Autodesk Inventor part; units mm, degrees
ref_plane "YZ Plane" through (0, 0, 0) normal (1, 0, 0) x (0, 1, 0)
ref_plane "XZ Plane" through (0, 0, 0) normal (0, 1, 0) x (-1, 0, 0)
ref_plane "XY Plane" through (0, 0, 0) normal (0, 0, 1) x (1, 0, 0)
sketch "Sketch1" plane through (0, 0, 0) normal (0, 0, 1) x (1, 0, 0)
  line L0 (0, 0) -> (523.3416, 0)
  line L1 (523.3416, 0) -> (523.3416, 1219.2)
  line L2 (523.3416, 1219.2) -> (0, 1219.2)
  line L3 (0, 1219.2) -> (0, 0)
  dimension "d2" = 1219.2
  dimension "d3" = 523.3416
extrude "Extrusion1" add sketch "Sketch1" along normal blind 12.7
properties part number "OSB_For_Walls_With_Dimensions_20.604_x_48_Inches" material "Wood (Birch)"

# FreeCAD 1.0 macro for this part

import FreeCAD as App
import Part
import Sketcher
from FreeCAD import Vector
Q = App.Units.Quantity


def add_polygon(sketch, points):
    """Adds a closed chain of lines whose ends are joined by coincident constraints."""
    first, n = sketch.GeometryCount, len(points)
    for a, b in zip(points, points[1:] + points[:1]):
        sketch.addGeometry(Part.LineSegment(App.Vector(*a, 0), App.Vector(*b, 0)), False)
    for i in range(n):
        sketch.addConstraint(Sketcher.Constraint("Coincident", first + i, 2, first + (i + 1) % n, 1))

doc = App.newDocument("Part")
body = doc.addObject("PartDesign::Body", "Body")

sketch1 = doc.addObject("Sketcher::SketchObject", "Sketch")
body.addObject(sketch1)
sketch1.AttachmentSupport = (doc.XY_Plane, [""])
sketch1.MapMode = "FlatFace"
add_polygon(sketch1, [(0, 1219), (0, 0), (523, 0), (523, 1219)])
sketch1.addConstraint([
    Sketcher.Constraint("Vertical", 0),
    Sketcher.Constraint("Horizontal", 1),
    Sketcher.Constraint("Vertical", 2),
    Sketcher.Constraint("Horizontal", 3),
    Sketcher.Constraint("Coincident", 0, 2, -1, 1),
    Sketcher.Constraint("DistanceY", 0, 2, 0, 1, Q("48 in")),
    Sketcher.Constraint("DistanceX", 1, 1, 1, 2, Q("20.604 in")),
])
pad1 = doc.addObject("PartDesign::Pad", "Pad")
body.addObject(pad1)
pad1.Profile = sketch1
pad1.Length = Q("0.5 in")

doc.recompute()
